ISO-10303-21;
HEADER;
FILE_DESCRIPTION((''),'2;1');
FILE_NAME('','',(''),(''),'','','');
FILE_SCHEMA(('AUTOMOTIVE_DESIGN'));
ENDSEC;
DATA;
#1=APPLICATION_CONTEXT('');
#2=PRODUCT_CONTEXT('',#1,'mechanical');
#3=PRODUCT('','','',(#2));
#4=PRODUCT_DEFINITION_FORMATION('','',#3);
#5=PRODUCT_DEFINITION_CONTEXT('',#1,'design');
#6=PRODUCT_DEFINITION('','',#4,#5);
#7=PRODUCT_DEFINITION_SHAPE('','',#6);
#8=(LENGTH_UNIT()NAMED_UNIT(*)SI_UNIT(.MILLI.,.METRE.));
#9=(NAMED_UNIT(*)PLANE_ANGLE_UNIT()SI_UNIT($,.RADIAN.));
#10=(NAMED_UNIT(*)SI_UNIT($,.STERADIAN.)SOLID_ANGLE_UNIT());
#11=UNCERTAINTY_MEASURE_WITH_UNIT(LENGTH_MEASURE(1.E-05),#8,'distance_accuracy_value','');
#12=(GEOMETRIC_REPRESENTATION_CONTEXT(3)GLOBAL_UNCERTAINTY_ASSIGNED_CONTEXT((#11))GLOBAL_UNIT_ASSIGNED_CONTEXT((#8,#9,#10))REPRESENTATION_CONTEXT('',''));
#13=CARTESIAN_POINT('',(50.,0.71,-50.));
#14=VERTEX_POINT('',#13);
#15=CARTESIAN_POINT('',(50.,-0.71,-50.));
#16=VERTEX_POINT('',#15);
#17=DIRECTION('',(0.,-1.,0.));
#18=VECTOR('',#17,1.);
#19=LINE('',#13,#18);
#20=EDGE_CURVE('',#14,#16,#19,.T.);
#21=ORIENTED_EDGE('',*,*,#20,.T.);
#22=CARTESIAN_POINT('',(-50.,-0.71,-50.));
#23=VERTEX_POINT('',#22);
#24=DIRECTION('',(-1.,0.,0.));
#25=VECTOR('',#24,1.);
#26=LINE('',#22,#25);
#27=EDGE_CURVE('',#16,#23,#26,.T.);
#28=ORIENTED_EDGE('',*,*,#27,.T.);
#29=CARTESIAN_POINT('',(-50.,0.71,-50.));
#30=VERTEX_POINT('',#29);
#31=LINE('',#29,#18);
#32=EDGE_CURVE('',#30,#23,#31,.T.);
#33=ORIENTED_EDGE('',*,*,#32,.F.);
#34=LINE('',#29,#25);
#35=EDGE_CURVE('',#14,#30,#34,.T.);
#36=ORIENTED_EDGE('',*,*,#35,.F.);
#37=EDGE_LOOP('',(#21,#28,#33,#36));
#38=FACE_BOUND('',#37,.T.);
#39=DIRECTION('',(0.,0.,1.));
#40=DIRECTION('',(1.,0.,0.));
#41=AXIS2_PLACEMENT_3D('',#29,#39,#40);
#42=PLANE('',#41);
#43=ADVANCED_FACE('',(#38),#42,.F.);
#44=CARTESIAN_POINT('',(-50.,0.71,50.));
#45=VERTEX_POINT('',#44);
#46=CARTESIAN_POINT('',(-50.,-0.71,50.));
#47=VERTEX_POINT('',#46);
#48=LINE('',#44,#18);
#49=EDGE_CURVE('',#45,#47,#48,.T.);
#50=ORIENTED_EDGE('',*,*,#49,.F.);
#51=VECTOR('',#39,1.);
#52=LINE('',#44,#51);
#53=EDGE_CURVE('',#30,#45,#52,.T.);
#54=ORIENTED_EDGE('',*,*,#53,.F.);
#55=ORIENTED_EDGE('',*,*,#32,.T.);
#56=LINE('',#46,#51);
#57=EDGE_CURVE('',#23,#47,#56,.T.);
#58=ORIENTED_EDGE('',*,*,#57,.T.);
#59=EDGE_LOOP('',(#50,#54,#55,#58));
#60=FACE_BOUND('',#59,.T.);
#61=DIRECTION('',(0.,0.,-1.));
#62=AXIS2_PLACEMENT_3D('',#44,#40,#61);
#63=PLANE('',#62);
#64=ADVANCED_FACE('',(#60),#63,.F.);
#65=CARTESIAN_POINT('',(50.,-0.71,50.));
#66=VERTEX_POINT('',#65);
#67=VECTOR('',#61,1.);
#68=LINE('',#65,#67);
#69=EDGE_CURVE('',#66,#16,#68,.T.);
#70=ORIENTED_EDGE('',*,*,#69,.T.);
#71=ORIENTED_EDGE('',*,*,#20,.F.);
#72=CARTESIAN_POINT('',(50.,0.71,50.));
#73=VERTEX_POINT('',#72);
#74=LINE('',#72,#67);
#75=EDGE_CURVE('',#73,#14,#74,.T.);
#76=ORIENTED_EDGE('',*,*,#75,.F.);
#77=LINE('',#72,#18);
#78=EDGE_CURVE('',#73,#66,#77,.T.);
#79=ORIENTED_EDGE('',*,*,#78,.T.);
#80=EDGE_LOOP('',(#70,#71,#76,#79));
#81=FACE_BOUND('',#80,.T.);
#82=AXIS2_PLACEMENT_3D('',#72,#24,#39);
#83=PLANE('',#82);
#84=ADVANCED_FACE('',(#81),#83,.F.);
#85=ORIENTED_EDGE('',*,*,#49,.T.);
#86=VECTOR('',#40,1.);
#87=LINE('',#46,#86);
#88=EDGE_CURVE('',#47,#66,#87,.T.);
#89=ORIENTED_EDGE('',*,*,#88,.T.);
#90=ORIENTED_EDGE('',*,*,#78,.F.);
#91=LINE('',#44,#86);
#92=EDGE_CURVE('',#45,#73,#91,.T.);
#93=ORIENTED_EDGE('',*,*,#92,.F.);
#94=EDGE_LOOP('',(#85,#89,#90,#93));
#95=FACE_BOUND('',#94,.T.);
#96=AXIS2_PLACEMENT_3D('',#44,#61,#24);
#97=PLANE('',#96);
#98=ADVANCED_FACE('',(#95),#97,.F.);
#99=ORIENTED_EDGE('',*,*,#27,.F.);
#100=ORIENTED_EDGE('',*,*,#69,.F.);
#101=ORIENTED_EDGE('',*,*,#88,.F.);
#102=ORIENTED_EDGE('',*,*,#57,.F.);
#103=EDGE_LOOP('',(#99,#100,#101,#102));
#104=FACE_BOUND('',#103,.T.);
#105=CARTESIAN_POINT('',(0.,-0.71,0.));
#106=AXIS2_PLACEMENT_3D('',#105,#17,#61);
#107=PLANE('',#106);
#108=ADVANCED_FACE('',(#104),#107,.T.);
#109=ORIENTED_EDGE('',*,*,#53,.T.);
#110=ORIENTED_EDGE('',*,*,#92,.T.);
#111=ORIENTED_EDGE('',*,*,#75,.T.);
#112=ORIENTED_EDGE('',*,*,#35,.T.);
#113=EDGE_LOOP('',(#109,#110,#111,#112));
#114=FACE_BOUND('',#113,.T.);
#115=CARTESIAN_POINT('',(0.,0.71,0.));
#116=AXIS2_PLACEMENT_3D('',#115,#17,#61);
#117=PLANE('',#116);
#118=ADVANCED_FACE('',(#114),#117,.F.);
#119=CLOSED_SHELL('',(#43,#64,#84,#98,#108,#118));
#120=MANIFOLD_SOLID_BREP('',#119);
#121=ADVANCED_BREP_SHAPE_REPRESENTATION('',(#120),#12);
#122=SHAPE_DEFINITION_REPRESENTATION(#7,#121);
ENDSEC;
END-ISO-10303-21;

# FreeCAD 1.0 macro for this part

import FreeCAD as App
import Part
import Sketcher
Q = App.Units.Quantity


def add_polygon(sketch, points):
    """Adds a closed chain of lines whose ends are joined by coincident constraints."""
    first, n = sketch.GeometryCount, len(points)
    for a, b in zip(points, points[1:] + points[:1]):
        sketch.addGeometry(Part.LineSegment(App.Vector(*a, 0), App.Vector(*b, 0)), False)
    for i in range(n):
        sketch.addConstraint(Sketcher.Constraint("Coincident", first + i, 2, first + (i + 1) % n, 1))

doc = App.newDocument("Part")
body = doc.addObject("PartDesign::Body", "Body")

# Sketch on XZ plane
sketch1 = body.newObject("Sketcher::SketchObject", "Sketch")
sketch1.AttachmentSupport = (doc.getObject("XZ_Plane"), [""])
sketch1.MapMode = "FlatFace"
add_polygon(sketch1, [(-50, -50), (-50, 50), (50, 50), (50, -50)])  # lines 0-3
sketch1.addConstraint([
    Sketcher.Constraint("Vertical", 0),
    Sketcher.Constraint("Horizontal", 1),
    Sketcher.Constraint("Vertical", 2),
    Sketcher.Constraint("Horizontal", 3),
    Sketcher.Constraint("Symmetric", 0, 2, 2, 2, -1, 1),
    Sketcher.Constraint("Equal", 3, 0),
    Sketcher.Constraint("DistanceX", 1, 1, 1, 2, Q("100 mm")),
])
pad1 = body.newObject("PartDesign::Pad", "Pad")
pad1.Profile = sketch1
pad1.Length = 1.42
pad1.Midplane = True

doc.recompute()
